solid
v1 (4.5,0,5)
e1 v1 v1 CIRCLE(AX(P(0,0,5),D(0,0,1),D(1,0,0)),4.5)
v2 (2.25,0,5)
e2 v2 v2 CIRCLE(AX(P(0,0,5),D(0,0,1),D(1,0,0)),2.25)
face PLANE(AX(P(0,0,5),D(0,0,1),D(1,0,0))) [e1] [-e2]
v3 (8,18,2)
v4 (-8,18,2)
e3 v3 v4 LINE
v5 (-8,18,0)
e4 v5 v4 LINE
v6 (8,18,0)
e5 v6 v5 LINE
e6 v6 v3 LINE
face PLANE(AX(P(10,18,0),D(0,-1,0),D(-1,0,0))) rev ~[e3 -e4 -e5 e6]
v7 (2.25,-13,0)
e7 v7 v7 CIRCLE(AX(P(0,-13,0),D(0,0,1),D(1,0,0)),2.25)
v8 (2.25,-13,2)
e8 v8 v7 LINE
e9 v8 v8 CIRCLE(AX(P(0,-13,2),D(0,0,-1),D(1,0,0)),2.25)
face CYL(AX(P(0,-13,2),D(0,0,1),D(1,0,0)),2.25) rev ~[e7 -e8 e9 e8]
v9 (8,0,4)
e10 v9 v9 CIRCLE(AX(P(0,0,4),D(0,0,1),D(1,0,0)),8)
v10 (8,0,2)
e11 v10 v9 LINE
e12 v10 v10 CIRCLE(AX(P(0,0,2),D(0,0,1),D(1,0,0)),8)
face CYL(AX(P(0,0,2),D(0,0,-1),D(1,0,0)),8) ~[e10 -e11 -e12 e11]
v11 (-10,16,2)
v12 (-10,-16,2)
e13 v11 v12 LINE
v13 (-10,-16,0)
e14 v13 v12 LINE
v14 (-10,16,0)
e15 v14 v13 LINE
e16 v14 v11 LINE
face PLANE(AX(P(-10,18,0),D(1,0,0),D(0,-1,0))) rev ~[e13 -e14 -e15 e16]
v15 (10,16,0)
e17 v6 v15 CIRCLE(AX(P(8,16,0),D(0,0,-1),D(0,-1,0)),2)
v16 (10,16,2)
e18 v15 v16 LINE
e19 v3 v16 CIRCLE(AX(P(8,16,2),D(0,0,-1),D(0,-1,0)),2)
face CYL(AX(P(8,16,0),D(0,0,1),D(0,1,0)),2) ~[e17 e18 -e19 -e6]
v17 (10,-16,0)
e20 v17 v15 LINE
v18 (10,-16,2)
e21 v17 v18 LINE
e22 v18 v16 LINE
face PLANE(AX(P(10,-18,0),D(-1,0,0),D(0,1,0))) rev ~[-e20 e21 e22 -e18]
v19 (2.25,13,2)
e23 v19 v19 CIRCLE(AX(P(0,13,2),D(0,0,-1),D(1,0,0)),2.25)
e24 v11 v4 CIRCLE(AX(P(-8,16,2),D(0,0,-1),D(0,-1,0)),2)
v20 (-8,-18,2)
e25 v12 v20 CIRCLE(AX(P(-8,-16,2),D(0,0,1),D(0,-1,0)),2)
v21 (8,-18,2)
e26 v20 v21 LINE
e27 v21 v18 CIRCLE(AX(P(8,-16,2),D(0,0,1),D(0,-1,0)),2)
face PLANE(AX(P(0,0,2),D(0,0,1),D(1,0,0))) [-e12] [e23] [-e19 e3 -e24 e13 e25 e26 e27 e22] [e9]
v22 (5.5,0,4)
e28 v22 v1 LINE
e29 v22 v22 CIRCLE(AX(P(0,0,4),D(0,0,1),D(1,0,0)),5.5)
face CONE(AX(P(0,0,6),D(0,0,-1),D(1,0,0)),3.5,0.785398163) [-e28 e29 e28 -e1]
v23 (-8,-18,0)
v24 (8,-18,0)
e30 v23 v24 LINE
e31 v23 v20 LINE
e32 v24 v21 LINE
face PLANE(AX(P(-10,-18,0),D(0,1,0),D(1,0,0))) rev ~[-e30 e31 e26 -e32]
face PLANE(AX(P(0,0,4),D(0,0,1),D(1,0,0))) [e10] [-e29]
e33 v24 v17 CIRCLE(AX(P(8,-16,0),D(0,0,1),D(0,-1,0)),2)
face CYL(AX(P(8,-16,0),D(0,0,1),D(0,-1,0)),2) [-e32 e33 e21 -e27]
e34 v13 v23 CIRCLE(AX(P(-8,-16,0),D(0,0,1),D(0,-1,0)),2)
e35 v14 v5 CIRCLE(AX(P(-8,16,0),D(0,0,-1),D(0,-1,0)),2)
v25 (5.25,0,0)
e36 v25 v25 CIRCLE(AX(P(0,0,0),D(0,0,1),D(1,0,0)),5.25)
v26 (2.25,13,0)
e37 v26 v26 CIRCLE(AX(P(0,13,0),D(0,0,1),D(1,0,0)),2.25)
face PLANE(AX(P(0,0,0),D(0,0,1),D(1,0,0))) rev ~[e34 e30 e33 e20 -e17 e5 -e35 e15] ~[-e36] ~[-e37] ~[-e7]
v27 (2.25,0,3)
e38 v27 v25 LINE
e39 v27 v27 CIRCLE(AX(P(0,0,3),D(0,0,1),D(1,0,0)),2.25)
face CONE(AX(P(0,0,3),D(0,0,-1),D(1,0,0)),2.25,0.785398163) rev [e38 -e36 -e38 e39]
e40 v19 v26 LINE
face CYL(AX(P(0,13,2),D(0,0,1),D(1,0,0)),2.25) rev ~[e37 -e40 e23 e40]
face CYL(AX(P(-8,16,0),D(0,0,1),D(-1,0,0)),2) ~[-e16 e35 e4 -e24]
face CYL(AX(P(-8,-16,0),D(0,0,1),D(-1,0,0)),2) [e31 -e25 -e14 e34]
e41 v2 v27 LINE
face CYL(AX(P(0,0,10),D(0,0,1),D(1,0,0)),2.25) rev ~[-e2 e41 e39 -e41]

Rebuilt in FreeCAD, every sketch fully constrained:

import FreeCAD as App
import Part
import Sketcher

V = App.Vector
Q = App.Units.Quantity


def edges_at(feature, points):
    """Names of the edges that pass closest to the given points."""
    edges = feature.Shape.Edges
    near = lambda p: min(range(len(edges)), key=lambda i: edges[i].distToShape(Part.Vertex(*p))[0])
    return sorted({f"Edge{near(p) + 1}" for p in points})

doc = App.newDocument("Part")
body = doc.addObject("PartDesign::Body", "Body")

# Sketch on XY plane
sketch1 = doc.addObject("Sketcher::SketchObject", "Sketch")
body.addObject(sketch1)
sketch1.AttachmentSupport = (doc.XY_Plane, [""])
sketch1.MapMode = "FlatFace"
sketch1.addGeometry([
    Part.LineSegment(V(-10, 18, 0), V(-10, -18, 0)),
    Part.LineSegment(V(-10, -18, 0), V(10, -18, 0)),
    Part.LineSegment(V(10, -18, 0), V(10, 18, 0)),
    Part.LineSegment(V(10, 18, 0), V(-10, 18, 0)),
], False)
sketch1.addConstraint([
    Sketcher.Constraint("Coincident", 0, 2, 1, 1),
    Sketcher.Constraint("Coincident", 1, 2, 2, 1),
    Sketcher.Constraint("Coincident", 2, 2, 3, 1),
    Sketcher.Constraint("Coincident", 3, 2, 0, 1),
    Sketcher.Constraint("Vertical", 0),
    Sketcher.Constraint("Horizontal", 1),
    Sketcher.Constraint("Vertical", 2),
    Sketcher.Constraint("Horizontal", 3),
    Sketcher.Constraint("Symmetric", 0, 2, 2, 2, -1, 1),
    Sketcher.Constraint("DistanceX", 1, 1, 1, 2, Q("20 mm")),
    Sketcher.Constraint("DistanceY", 0, 2, 0, 1, Q("36 mm")),
])
pad1 = doc.addObject("PartDesign::Pad", "Pad")
body.addObject(pad1)
pad1.Profile = sketch1
pad1.Length = 2

# Sketch on XY plane
sketch2 = doc.addObject("Sketcher::SketchObject", "Sketch001")
body.addObject(sketch2)
sketch2.AttachmentSupport = (doc.XY_Plane, [""])
sketch2.MapMode = "FlatFace"
sketch2.AttachmentOffset = App.Placement(V(0, 0, 2), App.Rotation())
sketch2.addGeometry([
    Part.Circle(V(0, 13, 0), V(0, 0, 1), 2.2),
    Part.Circle(V(0, -13, 0), V(0, 0, 1), 2.2),
], False)
sketch2.addConstraint([
    Sketcher.Constraint("Equal", 0, 1),
    Sketcher.Constraint("Symmetric", 0, 3, 1, 3, -1, 1),
    Sketcher.Constraint("PointOnObject", 0, 3, -2),
    Sketcher.Constraint("Diameter", 0, Q("4.5 mm")),
    Sketcher.Constraint("DistanceY", -1, 1, 0, 3, Q("13 mm")),
])
pocket1 = doc.addObject("PartDesign::Pocket", "Pocket")
body.addObject(pocket1)
pocket1.Profile = sketch2
pocket1.Type = "ThroughAll"

# Sketch on XY plane
sketch3 = doc.addObject("Sketcher::SketchObject", "Sketch002")
body.addObject(sketch3)
sketch3.AttachmentSupport = (doc.XY_Plane, [""])
sketch3.MapMode = "FlatFace"
sketch3.AttachmentOffset = App.Placement(V(0, 0, 2), App.Rotation())
sketch3.addGeometry(Part.Circle(V(0, 0, 0), V(0, 0, 1), 8), False)
sketch3.addConstraint([
    Sketcher.Constraint("Coincident", 0, 3, -1, 1),
    Sketcher.Constraint("Diameter", 0, Q("16 mm")),
])
pad2 = doc.addObject("PartDesign::Pad", "Pad001")
body.addObject(pad2)
pad2.Profile = sketch3
pad2.Length = 2
doc.recompute()

fillet = doc.addObject("PartDesign::Fillet", "Fillet")
body.addObject(fillet)
fillet.Base = (pad2, edges_at(pad2, [
    (10, 18, 1),
    (-10, 18, 1),
    (-10, -18, 1),
    (10, -18, 1),
]))
fillet.Radius = 2

# Sketch on XY plane
sketch4 = doc.addObject("Sketcher::SketchObject", "Sketch003")
body.addObject(sketch4)
sketch4.AttachmentSupport = (doc.XY_Plane, [""])
sketch4.MapMode = "FlatFace"
sketch4.AttachmentOffset = App.Placement(V(0, 0, 4), App.Rotation())
sketch4.addGeometry(Part.Circle(V(0, 0, 0), V(0, 0, 1), 3.5), False)
sketch4.addConstraint([
    Sketcher.Constraint("Coincident", 0, 3, -1, 1),
    Sketcher.Constraint("Diameter", 0, Q("7 mm")),
])
pad3 = doc.addObject("PartDesign::Pad", "Pad002")
body.addObject(pad3)
pad3.Profile = sketch4
pad3.Length = 6
doc.recompute()

chamfer = doc.addObject("PartDesign::Chamfer", "Chamfer")
body.addObject(chamfer)
chamfer.Base = (pad3, edges_at(pad3, [(-3.5, 0, 4)]))
chamfer.Size = 2

# Sketch on XY plane
sketch5 = doc.addObject("Sketcher::SketchObject", "Sketch004")
body.addObject(sketch5)
sketch5.AttachmentSupport = (doc.XY_Plane, [""])
sketch5.MapMode = "FlatFace"
sketch5.AttachmentOffset = App.Placement(V(0, 0, 10), App.Rotation())
sketch5.addGeometry(Part.Circle(V(0, 0, 0), V(0, 0, 1), 2.2), False)
sketch5.addConstraint([
    Sketcher.Constraint("Coincident", 0, 3, -1, 1),
    Sketcher.Constraint("Diameter", 0, Q("4.5 mm")),
])
pocket2 = doc.addObject("PartDesign::Pocket", "Pocket001")
body.addObject(pocket2)
pocket2.Profile = sketch5
pocket2.Type = "ThroughAll"
doc.recompute()

chamfer2 = doc.addObject("PartDesign::Chamfer", "Chamfer001")
body.addObject(chamfer2)
chamfer2.Base = (pocket2, edges_at(pocket2, [(-2.25, 0, 0)]))
chamfer2.Size = 3

# Sketch on XY plane
sketch6 = doc.addObject("Sketcher::SketchObject", "Sketch005")
body.addObject(sketch6)
sketch6.AttachmentSupport = (doc.XY_Plane, [""])
sketch6.MapMode = "FlatFace"
sketch6.AttachmentOffset = App.Placement(V(0, 0, 10), App.Rotation())
sketch6.addGeometry(Part.Circle(V(0, 0, 0), V(0, 0, 1), 14), False)
sketch6.addConstraint([
    Sketcher.Constraint("Coincident", 0, 3, -1, 1),
    Sketcher.Constraint("Diameter", 0, Q("27.2252 mm")),
])
pocket3 = doc.addObject("PartDesign::Pocket", "Pocket002")
body.addObject(pocket3)
pocket3.Profile = sketch6
pocket3.Length = 5

doc.recompute()
